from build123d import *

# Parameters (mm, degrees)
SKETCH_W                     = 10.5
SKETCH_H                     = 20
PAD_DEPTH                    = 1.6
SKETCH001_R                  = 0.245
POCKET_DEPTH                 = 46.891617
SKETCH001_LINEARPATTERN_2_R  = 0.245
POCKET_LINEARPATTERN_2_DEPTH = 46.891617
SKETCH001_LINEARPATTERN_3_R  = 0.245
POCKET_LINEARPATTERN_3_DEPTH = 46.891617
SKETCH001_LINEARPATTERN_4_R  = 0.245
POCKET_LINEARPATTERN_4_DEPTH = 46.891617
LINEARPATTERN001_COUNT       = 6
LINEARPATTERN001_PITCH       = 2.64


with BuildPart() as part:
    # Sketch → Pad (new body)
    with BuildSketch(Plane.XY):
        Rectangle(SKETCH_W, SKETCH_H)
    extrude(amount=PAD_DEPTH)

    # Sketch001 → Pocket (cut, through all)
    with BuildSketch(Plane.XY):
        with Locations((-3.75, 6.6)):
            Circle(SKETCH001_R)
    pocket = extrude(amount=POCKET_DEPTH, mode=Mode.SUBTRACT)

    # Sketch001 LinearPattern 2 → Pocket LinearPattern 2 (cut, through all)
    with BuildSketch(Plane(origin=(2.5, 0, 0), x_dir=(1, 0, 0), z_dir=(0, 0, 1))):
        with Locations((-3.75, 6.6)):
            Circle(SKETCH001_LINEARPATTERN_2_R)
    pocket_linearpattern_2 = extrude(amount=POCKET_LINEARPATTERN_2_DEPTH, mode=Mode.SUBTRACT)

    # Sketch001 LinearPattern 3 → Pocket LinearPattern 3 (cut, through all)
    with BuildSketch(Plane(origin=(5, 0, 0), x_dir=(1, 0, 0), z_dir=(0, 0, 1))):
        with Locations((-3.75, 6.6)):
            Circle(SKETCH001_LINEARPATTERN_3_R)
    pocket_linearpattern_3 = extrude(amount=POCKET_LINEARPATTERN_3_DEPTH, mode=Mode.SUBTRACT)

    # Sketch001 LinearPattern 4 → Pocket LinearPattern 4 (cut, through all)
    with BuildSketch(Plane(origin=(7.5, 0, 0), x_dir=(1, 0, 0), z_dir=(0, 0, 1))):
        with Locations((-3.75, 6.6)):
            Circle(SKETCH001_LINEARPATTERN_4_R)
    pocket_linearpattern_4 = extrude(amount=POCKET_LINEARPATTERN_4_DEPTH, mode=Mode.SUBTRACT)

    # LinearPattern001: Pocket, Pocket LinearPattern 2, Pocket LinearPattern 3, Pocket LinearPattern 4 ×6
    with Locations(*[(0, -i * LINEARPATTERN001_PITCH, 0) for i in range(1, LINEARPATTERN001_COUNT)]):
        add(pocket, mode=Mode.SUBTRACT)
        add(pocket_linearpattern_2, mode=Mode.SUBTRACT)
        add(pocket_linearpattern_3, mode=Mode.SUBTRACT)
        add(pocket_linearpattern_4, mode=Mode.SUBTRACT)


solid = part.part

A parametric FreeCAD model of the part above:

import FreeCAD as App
import Part
import Sketcher
Q = App.Units.Quantity


def add_polygon(sketch, points):
    """Adds a closed chain of lines whose ends are joined by coincident constraints."""
    first, n = sketch.GeometryCount, len(points)
    for a, b in zip(points, points[1:] + points[:1]):
        sketch.addGeometry(Part.LineSegment(App.Vector(*a, 0), App.Vector(*b, 0)), False)
    for i in range(n):
        sketch.addConstraint(Sketcher.Constraint("Coincident", first + i, 2, first + (i + 1) % n, 1))

doc = App.newDocument("Part")
body = doc.addObject("PartDesign::Body", "Body")

# Sketch on XY plane
sketch1 = doc.addObject("Sketcher::SketchObject", "Sketch")
body.addObject(sketch1)
sketch1.AttachmentSupport = (doc.XY_Plane, [""])
sketch1.MapMode = "FlatFace"
add_polygon(sketch1, [(-5, 10), (-5, -10), (5, -10), (5, 10)])  # lines 0-3
sketch1.addConstraint(Sketcher.Constraint("Vertical", 0))
sketch1.addConstraint(Sketcher.Constraint("Horizontal", 1))
sketch1.addConstraint(Sketcher.Constraint("Vertical", 2))
sketch1.addConstraint(Sketcher.Constraint("Horizontal", 3))
sketch1.addConstraint(Sketcher.Constraint("Symmetric", 0, 2, 2, 2, -1, 1))
sketch1.addConstraint(Sketcher.Constraint("DistanceY", 0, 2, 0, 1, Q("20 mm")))
sketch1.addConstraint(Sketcher.Constraint("DistanceX", 1, 1, 1, 2, Q("10.5 mm")))
pad1 = doc.addObject("PartDesign::Pad", "Pad")
body.addObject(pad1)
pad1.Profile = sketch1
pad1.Length = 1.6

# Sketch on XY plane
sketch2 = doc.addObject("Sketcher::SketchObject", "Sketch001")
body.addObject(sketch2)
sketch2.AttachmentSupport = (doc.XY_Plane, [""])
sketch2.MapMode = "FlatFace"
sketch2.addGeometry(Part.Circle(App.Vector(-3.75, 6.6, 0), App.Vector(0, 0, 1), 0.24), False)
sketch2.addConstraint(Sketcher.Constraint("Diameter", 0, Q("0.49 mm")))
sketch2.addConstraint(Sketcher.Constraint("DistanceY", -1, 1, 0, 3, Q("6.6 mm")))
sketch2.addConstraint(Sketcher.Constraint("DistanceX", 0, 3, -1, 1, Q("3.75 mm")))
pocket1 = doc.addObject("PartDesign::Pocket", "Pocket")
body.addObject(pocket1)
pocket1.Profile = sketch2
pocket1.Type = "ThroughAll"
pocket1.Reversed = True

# Sketch on XY plane
sketch3 = doc.addObject("Sketcher::SketchObject", "Sketch002")
body.addObject(sketch3)
sketch3.AttachmentSupport = (doc.XY_Plane, [""])
sketch3.MapMode = "FlatFace"
sketch3.addGeometry(Part.Circle(App.Vector(-1.25, 6.6, 0), App.Vector(0, 0, 1), 0.24), False)
sketch3.addConstraint(Sketcher.Constraint("Diameter", 0, Q("0.49 mm")))
sketch3.addConstraint(Sketcher.Constraint("DistanceY", -1, 1, 0, 3, Q("6.6 mm")))
sketch3.addConstraint(Sketcher.Constraint("DistanceX", 0, 3, -1, 1, Q("1.25 mm")))
pocket2 = doc.addObject("PartDesign::Pocket", "Pocket001")
body.addObject(pocket2)
pocket2.Profile = sketch3
pocket2.Type = "ThroughAll"
pocket2.Reversed = True

# Sketch on XY plane
sketch4 = doc.addObject("Sketcher::SketchObject", "Sketch003")
body.addObject(sketch4)
sketch4.AttachmentSupport = (doc.XY_Plane, [""])
sketch4.MapMode = "FlatFace"
sketch4.addGeometry(Part.Circle(App.Vector(1.25, 6.6, 0), App.Vector(0, 0, 1), 0.24), False)
sketch4.addConstraint(Sketcher.Constraint("Diameter", 0, Q("0.49 mm")))
sketch4.addConstraint(Sketcher.Constraint("DistanceY", -1, 1, 0, 3, Q("6.6 mm")))
sketch4.addConstraint(Sketcher.Constraint("DistanceX", -1, 1, 0, 3, Q("1.25 mm")))
pocket3 = doc.addObject("PartDesign::Pocket", "Pocket002")
body.addObject(pocket3)
pocket3.Profile = sketch4
pocket3.Type = "ThroughAll"
pocket3.Reversed = True

# Sketch on XY plane
sketch5 = doc.addObject("Sketcher::SketchObject", "Sketch004")
body.addObject(sketch5)
sketch5.AttachmentSupport = (doc.XY_Plane, [""])
sketch5.MapMode = "FlatFace"
sketch5.addGeometry(Part.Circle(App.Vector(3.75, 6.6, 0), App.Vector(0, 0, 1), 0.24), False)
sketch5.addConstraint(Sketcher.Constraint("Diameter", 0, Q("0.49 mm")))
sketch5.addConstraint(Sketcher.Constraint("DistanceY", -1, 1, 0, 3, Q("6.6 mm")))
sketch5.addConstraint(Sketcher.Constraint("DistanceX", -1, 1, 0, 3, Q("3.75 mm")))
pocket4 = doc.addObject("PartDesign::Pocket", "Pocket003")
body.addObject(pocket4)
pocket4.Profile = sketch5
pocket4.Type = "ThroughAll"
pocket4.Reversed = True
doc.recompute()

linearpattern = doc.addObject("PartDesign::LinearPattern", "LinearPattern")
body.addObject(linearpattern)
linearpattern.Originals = [pocket1, pocket2, pocket3, pocket4]
linearpattern.Direction = (doc.Y_Axis, [""])
linearpattern.Mode = "offset"
linearpattern.Offset = 2.64
linearpattern.Occurrences = 6
linearpattern.Reversed = True
body.Tip = linearpattern

doc.recompute()
